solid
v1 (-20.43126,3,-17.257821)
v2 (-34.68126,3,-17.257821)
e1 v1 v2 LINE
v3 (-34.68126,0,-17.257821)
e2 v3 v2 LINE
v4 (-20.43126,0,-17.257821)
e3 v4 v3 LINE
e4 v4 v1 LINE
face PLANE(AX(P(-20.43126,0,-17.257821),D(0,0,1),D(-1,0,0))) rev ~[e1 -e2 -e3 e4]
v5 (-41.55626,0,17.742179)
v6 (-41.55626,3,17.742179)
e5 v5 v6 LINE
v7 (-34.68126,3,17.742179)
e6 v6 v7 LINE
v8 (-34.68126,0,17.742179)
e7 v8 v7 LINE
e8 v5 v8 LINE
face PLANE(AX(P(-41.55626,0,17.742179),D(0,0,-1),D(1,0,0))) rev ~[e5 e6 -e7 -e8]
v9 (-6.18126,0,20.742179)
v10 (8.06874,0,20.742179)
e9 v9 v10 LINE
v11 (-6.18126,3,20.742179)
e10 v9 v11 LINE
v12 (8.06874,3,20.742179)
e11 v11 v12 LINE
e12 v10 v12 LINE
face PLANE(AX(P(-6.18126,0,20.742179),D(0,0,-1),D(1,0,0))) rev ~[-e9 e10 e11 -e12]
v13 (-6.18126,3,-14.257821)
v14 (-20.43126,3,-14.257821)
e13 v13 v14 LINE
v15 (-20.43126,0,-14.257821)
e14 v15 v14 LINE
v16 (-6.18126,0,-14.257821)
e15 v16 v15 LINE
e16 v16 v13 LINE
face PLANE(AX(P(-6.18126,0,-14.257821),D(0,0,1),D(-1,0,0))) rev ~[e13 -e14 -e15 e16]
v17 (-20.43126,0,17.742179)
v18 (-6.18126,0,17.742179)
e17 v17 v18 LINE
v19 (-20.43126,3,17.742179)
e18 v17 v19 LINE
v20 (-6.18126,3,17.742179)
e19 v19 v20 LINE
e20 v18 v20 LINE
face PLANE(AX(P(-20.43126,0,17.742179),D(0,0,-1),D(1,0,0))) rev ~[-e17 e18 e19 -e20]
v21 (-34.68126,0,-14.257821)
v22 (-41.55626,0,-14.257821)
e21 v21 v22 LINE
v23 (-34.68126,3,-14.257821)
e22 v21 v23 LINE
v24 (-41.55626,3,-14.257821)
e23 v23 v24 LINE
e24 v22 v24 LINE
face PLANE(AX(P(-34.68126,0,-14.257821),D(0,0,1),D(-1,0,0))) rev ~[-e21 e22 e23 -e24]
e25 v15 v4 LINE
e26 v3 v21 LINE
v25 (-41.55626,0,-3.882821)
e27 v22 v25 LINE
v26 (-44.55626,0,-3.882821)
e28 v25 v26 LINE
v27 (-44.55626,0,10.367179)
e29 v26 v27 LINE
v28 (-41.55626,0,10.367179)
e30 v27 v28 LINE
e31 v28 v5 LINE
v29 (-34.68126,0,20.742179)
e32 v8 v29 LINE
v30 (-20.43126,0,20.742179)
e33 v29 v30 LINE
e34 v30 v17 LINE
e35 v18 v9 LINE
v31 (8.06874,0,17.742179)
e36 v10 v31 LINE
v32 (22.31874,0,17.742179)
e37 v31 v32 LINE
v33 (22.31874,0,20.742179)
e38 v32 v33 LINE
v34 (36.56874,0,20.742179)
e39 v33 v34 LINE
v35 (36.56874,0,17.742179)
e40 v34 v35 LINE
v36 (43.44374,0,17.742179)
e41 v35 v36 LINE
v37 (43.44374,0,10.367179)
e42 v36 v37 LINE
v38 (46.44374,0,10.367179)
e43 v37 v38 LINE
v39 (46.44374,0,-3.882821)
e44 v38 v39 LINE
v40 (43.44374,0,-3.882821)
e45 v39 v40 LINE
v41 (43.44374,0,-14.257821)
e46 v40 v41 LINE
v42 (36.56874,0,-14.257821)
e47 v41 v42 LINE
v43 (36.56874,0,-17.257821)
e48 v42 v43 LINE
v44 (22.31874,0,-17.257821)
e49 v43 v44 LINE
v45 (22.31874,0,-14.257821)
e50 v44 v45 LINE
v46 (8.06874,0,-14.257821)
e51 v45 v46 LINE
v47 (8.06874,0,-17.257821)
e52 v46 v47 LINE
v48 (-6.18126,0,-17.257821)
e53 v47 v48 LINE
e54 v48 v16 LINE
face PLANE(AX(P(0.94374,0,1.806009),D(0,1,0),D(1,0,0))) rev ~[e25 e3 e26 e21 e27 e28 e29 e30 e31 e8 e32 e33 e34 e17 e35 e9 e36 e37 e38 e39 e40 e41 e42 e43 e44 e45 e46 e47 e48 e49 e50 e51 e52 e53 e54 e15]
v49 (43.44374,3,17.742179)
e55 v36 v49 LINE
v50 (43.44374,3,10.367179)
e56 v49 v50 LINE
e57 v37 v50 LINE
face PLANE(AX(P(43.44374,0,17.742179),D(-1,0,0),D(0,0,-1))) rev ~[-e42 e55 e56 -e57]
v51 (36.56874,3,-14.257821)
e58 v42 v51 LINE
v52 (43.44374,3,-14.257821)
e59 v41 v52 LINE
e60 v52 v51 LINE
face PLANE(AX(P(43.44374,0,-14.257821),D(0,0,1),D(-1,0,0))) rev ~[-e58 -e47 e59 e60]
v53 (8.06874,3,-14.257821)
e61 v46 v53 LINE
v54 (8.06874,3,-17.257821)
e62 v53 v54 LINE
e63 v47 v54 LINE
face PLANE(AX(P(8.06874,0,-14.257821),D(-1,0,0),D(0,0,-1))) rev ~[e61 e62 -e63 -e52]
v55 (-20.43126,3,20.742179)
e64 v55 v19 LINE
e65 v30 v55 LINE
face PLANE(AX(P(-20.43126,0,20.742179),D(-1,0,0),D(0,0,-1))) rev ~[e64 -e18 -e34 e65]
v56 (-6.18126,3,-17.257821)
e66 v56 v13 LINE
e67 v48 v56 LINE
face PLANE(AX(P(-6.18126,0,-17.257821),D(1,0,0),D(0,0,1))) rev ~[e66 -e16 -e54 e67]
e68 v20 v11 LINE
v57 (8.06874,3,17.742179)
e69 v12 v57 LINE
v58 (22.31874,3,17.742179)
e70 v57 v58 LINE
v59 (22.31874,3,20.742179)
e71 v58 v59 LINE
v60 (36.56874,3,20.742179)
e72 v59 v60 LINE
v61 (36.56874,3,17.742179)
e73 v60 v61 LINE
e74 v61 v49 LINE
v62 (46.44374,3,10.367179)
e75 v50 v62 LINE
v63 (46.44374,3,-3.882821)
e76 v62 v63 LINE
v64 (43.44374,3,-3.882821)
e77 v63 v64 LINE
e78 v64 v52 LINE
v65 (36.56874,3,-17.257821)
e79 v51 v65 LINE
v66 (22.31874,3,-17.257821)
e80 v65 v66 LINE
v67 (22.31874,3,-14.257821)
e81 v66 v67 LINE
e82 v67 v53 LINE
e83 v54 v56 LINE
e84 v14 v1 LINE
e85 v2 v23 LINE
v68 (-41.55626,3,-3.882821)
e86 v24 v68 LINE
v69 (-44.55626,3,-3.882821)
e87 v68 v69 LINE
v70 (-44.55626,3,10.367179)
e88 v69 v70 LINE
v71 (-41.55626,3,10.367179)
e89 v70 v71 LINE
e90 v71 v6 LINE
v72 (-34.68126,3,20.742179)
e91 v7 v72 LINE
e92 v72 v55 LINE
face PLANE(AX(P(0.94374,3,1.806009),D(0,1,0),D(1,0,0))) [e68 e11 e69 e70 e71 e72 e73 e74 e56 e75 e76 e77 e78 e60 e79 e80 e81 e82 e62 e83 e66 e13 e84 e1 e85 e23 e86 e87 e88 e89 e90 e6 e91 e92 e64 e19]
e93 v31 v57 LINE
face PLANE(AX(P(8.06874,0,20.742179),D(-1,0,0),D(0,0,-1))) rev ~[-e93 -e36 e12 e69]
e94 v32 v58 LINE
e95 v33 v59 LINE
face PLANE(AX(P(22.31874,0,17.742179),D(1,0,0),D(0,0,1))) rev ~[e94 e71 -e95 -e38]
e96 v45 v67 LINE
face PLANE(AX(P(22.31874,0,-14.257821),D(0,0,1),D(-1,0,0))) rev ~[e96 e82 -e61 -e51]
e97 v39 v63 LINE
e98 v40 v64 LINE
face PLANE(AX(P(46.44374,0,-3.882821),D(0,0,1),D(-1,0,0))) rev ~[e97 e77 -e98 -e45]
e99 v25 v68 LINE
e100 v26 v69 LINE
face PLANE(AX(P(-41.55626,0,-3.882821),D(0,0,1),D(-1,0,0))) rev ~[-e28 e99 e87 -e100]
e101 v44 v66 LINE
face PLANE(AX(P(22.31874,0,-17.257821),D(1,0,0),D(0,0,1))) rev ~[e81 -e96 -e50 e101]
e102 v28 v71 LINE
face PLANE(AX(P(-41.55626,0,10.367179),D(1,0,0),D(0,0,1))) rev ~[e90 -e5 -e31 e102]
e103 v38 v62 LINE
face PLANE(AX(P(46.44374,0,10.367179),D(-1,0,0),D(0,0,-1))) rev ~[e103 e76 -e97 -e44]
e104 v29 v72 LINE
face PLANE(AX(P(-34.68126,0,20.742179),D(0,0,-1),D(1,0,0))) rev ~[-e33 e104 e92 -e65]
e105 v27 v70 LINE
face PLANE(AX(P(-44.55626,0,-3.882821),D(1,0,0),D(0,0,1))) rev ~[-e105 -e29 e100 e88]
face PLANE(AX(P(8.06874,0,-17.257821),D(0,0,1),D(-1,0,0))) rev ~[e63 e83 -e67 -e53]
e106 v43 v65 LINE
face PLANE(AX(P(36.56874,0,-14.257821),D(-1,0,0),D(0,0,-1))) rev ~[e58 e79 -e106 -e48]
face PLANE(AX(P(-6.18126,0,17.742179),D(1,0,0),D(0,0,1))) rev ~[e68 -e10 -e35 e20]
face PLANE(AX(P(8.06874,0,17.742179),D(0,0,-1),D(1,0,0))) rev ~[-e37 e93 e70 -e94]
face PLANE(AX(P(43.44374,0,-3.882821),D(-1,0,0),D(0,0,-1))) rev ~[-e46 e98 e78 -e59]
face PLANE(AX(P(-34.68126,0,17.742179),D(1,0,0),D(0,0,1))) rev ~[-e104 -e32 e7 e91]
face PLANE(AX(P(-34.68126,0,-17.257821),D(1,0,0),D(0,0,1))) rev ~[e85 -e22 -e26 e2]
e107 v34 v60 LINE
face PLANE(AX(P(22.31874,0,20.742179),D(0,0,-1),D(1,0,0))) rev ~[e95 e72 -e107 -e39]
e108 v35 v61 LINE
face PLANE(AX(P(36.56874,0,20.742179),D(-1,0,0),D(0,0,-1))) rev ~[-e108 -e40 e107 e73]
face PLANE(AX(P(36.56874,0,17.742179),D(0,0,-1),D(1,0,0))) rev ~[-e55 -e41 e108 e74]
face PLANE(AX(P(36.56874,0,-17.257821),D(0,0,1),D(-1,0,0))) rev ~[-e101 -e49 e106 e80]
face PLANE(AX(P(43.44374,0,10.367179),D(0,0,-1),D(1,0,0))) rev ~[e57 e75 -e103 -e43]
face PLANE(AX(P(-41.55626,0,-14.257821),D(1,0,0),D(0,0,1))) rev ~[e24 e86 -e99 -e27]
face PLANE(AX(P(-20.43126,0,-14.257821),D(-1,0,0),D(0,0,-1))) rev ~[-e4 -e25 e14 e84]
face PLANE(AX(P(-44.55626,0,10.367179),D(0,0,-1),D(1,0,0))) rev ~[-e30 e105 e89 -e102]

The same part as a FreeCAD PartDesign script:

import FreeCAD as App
import Part
import Sketcher


def add_polygon(sketch, points):
    """Adds a closed chain of lines whose ends are joined by coincident constraints."""
    first, n = sketch.GeometryCount, len(points)
    for a, b in zip(points, points[1:] + points[:1]):
        sketch.addGeometry(Part.LineSegment(App.Vector(*a, 0), App.Vector(*b, 0)), False)
    for i in range(n):
        sketch.addConstraint(Sketcher.Constraint("Coincident", first + i, 2, first + (i + 1) % n, 1))

doc = App.newDocument("Part")
body = doc.addObject("PartDesign::Body", "Body")

# Sketch on XZ plane
sketch1 = body.newObject("Sketcher::SketchObject", "Sketch")
sketch1.AttachmentSupport = (doc.getObject("XZ_Plane"), [""])
sketch1.MapMode = "FlatFace"
add_polygon(sketch1, [(-41.6, -14.3), (-41.6, -3.9), (-44.6, -3.9), (-44.6, 10.4), (-41.6, 10.4), (-41.6, 17.7), (-34.7, 17.7), (-34.7, 20.7), (-20.4, 20.7), (-20.4, 17.7), (-6.2, 17.7), (-6.2, 20.7), (8.1, 20.7), (8.1, 17.7), (22.3, 17.7), (22.3, 20.7), (36.6, 20.7), (36.6, 17.7), (43.4, 17.7), (43.4, 10.4), (46.4, 10.4), (46.4, -3.9), (43.4, -3.9), (43.4, -14.3), (36.6, -14.3), (36.6, -17.3), (22.3, -17.3), (22.3, -14.3), (8.1, -14.3), (8.1, -17.3), (-6.2, -17.3), (-6.2, -14.3), (-20.4, -14.3), (-20.4, -17.3), (-34.7, -17.3), (-34.7, -14.3)])  # lines 0-35
sketch1.addConstraint(Sketcher.Constraint("Vertical", 0))
sketch1.addConstraint(Sketcher.Constraint("Horizontal", 1))
sketch1.addConstraint(Sketcher.Constraint("Vertical", 2))
sketch1.addConstraint(Sketcher.Constraint("Horizontal", 3))
sketch1.addConstraint(Sketcher.Constraint("Vertical", 4))
sketch1.addConstraint(Sketcher.Constraint("Horizontal", 5))
sketch1.addConstraint(Sketcher.Constraint("Vertical", 6))
sketch1.addConstraint(Sketcher.Constraint("Horizontal", 7))
sketch1.addConstraint(Sketcher.Constraint("Vertical", 8))
sketch1.addConstraint(Sketcher.Constraint("Horizontal", 9))
sketch1.addConstraint(Sketcher.Constraint("Vertical", 10))
sketch1.addConstraint(Sketcher.Constraint("Horizontal", 11))
sketch1.addConstraint(Sketcher.Constraint("Vertical", 12))
sketch1.addConstraint(Sketcher.Constraint("Horizontal", 13))
sketch1.addConstraint(Sketcher.Constraint("Vertical", 14))
sketch1.addConstraint(Sketcher.Constraint("Horizontal", 15))
sketch1.addConstraint(Sketcher.Constraint("Vertical", 16))
sketch1.addConstraint(Sketcher.Constraint("Horizontal", 17))
sketch1.addConstraint(Sketcher.Constraint("Vertical", 18))
sketch1.addConstraint(Sketcher.Constraint("Horizontal", 19))
sketch1.addConstraint(Sketcher.Constraint("Vertical", 20))
sketch1.addConstraint(Sketcher.Constraint("Horizontal", 21))
sketch1.addConstraint(Sketcher.Constraint("Vertical", 22))
sketch1.addConstraint(Sketcher.Constraint("Horizontal", 23))
sketch1.addConstraint(Sketcher.Constraint("Vertical", 24))
sketch1.addConstraint(Sketcher.Constraint("Horizontal", 25))
sketch1.addConstraint(Sketcher.Constraint("Vertical", 26))
sketch1.addConstraint(Sketcher.Constraint("Horizontal", 27))
sketch1.addConstraint(Sketcher.Constraint("Vertical", 28))
sketch1.addConstraint(Sketcher.Constraint("Horizontal", 29))
sketch1.addConstraint(Sketcher.Constraint("Vertical", 30))
sketch1.addConstraint(Sketcher.Constraint("Horizontal", 31))
sketch1.addConstraint(Sketcher.Constraint("Vertical", 32))
sketch1.addConstraint(Sketcher.Constraint("Horizontal", 33))
sketch1.addConstraint(Sketcher.Constraint("Vertical", 34))
sketch1.addConstraint(Sketcher.Constraint("Horizontal", 35))
sketch1.addConstraint(Sketcher.Constraint("Horizontal", 5, 2, 8, 2))
sketch1.addConstraint(Sketcher.Constraint("Horizontal", 7, 2, 10, 2))
sketch1.addConstraint(Sketcher.Constraint("Horizontal", 9, 2, 12, 2))
sketch1.addConstraint(Sketcher.Constraint("Horizontal", 11, 2, 14, 2))
sketch1.addConstraint(Sketcher.Constraint("Horizontal", 13, 2, 16, 2))
sketch1.addConstraint(Sketcher.Constraint("Horizontal", 3, 2, 18, 2))
sketch1.addConstraint(Sketcher.Constraint("Horizontal", 1, 2, 20, 2))
sketch1.addConstraint(Sketcher.Constraint("Horizontal", 23, 2, 26, 2))
sketch1.addConstraint(Sketcher.Constraint("Horizontal", 25, 2, 28, 2))
sketch1.addConstraint(Sketcher.Constraint("Horizontal", 27, 2, 30, 2))
sketch1.addConstraint(Sketcher.Constraint("Horizontal", 29, 2, 32, 2))
sketch1.addConstraint(Sketcher.Constraint("Horizontal", 31, 2, 34, 2))
sketch1.addConstraint(Sketcher.Constraint("Vertical", 0, 2, 3, 2))
sketch1.addConstraint(Sketcher.Constraint("Vertical", 18, 2, 21, 2))
sketch1.addConstraint(Sketcher.Constraint("Vertical", 16, 2, 23, 2))
sketch1.addConstraint(Sketcher.Constraint("Vertical", 14, 2, 25, 2))
sketch1.addConstraint(Sketcher.Constraint("Vertical", 12, 2, 27, 2))
sketch1.addConstraint(Sketcher.Constraint("Vertical", 10, 2, 29, 2))
sketch1.addConstraint(Sketcher.Constraint("Vertical", 8, 2, 31, 2))
sketch1.addConstraint(Sketcher.Constraint("Vertical", 6, 2, 33, 2))
sketch1.addConstraint(Sketcher.Constraint("Equal", 7, 9))
sketch1.addConstraint(Sketcher.Constraint("Equal", 9, 11))
sketch1.addConstraint(Sketcher.Constraint("Equal", 11, 13))
sketch1.addConstraint(Sketcher.Constraint("Equal", 13, 15))
sketch1.addConstraint(Sketcher.Constraint("Equal", 5, 17))
sketch1.addConstraint(Sketcher.Constraint("Equal", 3, 19))
sketch1.addConstraint(Sketcher.Constraint("Equal", 33, 2))
sketch1.addConstraint(Sketcher.Constraint("Equal", 21, 6))
sketch1.addConstraint(Sketcher.Constraint("Equal", 16, 24))
sketch1.addConstraint(Sketcher.Constraint("DistanceX", 1, 2, 1, 1, 3.0))
sketch1.addConstraint(Sketcher.Constraint("DistanceY", 22, 2, 17, 2, 32.0))
sketch1.addConstraint(Sketcher.Constraint("DistanceX", 7, 1, 7, 2, 14.25))
sketch1.addConstraint(Sketcher.Constraint("DistanceX", 5, 1, 5, 2, 6.875))
sketch1.addConstraint(Sketcher.Constraint("DistanceY", 0, 1, 0, 2, 10.375))
sketch1.addConstraint(Sketcher.Constraint("DistanceX", 0, 2, -1, 1, 41.55626))
sketch1.addConstraint(Sketcher.Constraint("DistanceY", 0, 2, -1, 1, 3.882821))
pad1 = body.newObject("PartDesign::Pad", "Pad")
pad1.Profile = sketch1
pad1.Length = 3
pad1.Reversed = True

doc.recompute()
